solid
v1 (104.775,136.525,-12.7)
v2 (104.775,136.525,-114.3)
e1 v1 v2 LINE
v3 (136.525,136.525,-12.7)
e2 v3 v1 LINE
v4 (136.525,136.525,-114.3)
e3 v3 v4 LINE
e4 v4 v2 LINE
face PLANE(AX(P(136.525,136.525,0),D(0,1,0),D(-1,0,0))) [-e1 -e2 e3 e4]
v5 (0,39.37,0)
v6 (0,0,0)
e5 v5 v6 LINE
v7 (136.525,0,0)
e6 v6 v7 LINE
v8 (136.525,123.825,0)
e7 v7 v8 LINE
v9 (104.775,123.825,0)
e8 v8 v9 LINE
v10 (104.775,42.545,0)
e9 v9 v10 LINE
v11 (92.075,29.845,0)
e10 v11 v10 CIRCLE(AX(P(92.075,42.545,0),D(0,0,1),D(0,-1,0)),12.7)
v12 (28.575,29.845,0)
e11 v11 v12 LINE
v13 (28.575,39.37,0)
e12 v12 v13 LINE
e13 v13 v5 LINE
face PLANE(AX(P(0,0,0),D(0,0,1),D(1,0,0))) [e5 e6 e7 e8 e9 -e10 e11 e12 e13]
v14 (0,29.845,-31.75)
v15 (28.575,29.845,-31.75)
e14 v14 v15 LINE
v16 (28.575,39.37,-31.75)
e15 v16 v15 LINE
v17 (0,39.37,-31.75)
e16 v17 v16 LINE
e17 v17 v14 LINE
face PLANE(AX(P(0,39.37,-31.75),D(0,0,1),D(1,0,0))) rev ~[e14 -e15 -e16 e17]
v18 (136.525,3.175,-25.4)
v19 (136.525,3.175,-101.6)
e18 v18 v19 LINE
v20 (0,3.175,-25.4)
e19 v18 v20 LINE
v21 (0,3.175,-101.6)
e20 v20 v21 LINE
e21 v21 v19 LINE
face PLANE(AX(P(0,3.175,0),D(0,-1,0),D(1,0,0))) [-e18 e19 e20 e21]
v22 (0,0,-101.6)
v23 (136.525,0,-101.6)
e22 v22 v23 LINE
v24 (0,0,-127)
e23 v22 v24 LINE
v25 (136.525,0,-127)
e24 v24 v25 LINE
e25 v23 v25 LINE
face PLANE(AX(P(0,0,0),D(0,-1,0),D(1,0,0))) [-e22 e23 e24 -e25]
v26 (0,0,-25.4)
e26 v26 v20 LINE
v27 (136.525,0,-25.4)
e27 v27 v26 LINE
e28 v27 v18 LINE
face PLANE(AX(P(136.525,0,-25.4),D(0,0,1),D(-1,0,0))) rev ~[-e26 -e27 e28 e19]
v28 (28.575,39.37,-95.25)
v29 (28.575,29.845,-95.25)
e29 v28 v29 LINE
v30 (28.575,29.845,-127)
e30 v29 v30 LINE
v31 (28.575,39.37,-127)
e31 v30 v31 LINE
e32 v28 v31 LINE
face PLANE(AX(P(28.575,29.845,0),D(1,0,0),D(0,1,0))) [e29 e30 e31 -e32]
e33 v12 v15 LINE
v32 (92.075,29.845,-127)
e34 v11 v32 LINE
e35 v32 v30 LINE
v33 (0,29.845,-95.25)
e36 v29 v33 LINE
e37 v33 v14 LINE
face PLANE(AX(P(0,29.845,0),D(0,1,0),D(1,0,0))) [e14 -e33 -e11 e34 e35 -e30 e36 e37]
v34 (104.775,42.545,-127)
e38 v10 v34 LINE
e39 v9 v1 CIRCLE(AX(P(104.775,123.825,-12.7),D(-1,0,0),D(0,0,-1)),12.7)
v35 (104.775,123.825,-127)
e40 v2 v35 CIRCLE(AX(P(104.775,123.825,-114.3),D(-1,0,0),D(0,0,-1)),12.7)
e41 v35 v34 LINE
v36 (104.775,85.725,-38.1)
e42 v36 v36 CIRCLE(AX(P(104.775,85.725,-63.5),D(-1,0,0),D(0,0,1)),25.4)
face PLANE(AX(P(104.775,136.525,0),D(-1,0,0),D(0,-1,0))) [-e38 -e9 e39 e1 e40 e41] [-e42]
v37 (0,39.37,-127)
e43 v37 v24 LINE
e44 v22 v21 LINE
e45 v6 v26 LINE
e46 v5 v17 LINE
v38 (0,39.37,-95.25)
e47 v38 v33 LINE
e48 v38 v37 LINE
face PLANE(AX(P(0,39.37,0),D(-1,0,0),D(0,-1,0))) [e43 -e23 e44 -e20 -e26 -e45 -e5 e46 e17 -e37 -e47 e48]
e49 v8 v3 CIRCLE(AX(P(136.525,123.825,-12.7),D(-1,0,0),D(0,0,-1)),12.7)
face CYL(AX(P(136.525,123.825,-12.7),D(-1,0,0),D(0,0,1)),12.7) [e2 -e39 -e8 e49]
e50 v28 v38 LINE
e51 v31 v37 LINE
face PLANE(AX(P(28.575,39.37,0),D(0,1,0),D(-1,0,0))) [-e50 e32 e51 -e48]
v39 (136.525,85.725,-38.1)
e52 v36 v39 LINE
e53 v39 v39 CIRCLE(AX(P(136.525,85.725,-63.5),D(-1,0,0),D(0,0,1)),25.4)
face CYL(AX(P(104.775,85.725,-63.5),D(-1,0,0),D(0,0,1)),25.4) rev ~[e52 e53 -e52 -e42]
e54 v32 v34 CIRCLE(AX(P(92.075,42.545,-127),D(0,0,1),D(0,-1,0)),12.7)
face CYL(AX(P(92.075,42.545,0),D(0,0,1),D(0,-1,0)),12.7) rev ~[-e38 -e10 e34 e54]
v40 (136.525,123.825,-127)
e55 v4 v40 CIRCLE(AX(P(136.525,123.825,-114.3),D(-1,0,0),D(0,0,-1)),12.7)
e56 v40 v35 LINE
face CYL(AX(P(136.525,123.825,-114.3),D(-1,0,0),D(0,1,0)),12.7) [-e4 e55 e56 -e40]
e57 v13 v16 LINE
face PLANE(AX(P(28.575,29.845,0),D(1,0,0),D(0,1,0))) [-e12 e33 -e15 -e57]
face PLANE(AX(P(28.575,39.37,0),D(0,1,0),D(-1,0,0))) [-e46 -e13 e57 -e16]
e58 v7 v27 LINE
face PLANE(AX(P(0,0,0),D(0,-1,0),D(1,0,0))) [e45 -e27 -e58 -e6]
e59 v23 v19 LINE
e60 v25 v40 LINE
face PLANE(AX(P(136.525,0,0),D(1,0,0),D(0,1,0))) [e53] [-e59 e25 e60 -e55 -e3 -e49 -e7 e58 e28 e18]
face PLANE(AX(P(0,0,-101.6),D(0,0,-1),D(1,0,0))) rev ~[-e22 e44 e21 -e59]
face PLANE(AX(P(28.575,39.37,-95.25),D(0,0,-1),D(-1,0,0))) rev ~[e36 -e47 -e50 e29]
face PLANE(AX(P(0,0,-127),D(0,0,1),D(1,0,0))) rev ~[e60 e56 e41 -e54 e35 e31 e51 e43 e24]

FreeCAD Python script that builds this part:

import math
import FreeCAD as App
import Part
import Sketcher
Q = App.Units.Quantity


def edges_at(feature, points):
    """Names of the edges that pass closest to the given points."""
    edges = feature.Shape.Edges
    near = lambda p: min(range(len(edges)), key=lambda i: edges[i].distToShape(Part.Vertex(*p))[0])
    return sorted({f"Edge{near(p) + 1}" for p in points})


def add_polygon(sketch, points):
    """Adds a closed chain of lines whose ends are joined by coincident constraints."""
    first, n = sketch.GeometryCount, len(points)
    for a, b in zip(points, points[1:] + points[:1]):
        sketch.addGeometry(Part.LineSegment(App.Vector(*a, 0), App.Vector(*b, 0)), False)
    for i in range(n):
        sketch.addConstraint(Sketcher.Constraint("Coincident", first + i, 2, first + (i + 1) % n, 1))

doc = App.newDocument("Part")
body = doc.addObject("PartDesign::Body", "Body")

# Sketch on XY plane
sketch1 = doc.addObject("Sketcher::SketchObject", "Sketch")
body.addObject(sketch1)
sketch1.AttachmentSupport = (doc.XY_Plane, [""])
sketch1.MapMode = "FlatFace"
sketch1.addGeometry([
    Part.LineSegment(App.Vector(0, 39, 0), App.Vector(0, 0, 0)),  # 0
    Part.LineSegment(App.Vector(0, 0, 0), App.Vector(137, 0, 0)),  # 1
    Part.LineSegment(App.Vector(137, 0, 0), App.Vector(137, 137, 0)),  # 2
    Part.LineSegment(App.Vector(137, 137, 0), App.Vector(105, 137, 0)),  # 3
    Part.LineSegment(App.Vector(105, 137, 0), App.Vector(105, 43, 0)),  # 4
    Part.ArcOfCircle(Part.Circle(App.Vector(92, 43, 0), App.Vector(0, 0, 1), 13), math.radians(-90), math.radians(0)),  # 5
    Part.LineSegment(App.Vector(92, 30, 0), App.Vector(29, 30, 0)),  # 6
    Part.LineSegment(App.Vector(29, 30, 0), App.Vector(29, 39, 0)),  # 7
    Part.LineSegment(App.Vector(29, 39, 0), App.Vector(0, 39, 0)),  # 8
], False)
sketch1.addConstraint([
    Sketcher.Constraint("Coincident", 0, 2, 1, 1),
    Sketcher.Constraint("Coincident", 1, 2, 2, 1),
    Sketcher.Constraint("Coincident", 2, 2, 3, 1),
    Sketcher.Constraint("Coincident", 3, 2, 4, 1),
    Sketcher.Constraint("Tangent", 4, 2, 5, 2),
    Sketcher.Constraint("Tangent", 5, 1, 6, 1),
    Sketcher.Constraint("Coincident", 6, 2, 7, 1),
    Sketcher.Constraint("Coincident", 7, 2, 8, 1),
    Sketcher.Constraint("Coincident", 8, 2, 0, 1),
    Sketcher.Constraint("Vertical", 0),
    Sketcher.Constraint("Horizontal", 1),
    Sketcher.Constraint("Vertical", 2),
    Sketcher.Constraint("Horizontal", 3),
    Sketcher.Constraint("Vertical", 4),
    Sketcher.Constraint("Horizontal", 6),
    Sketcher.Constraint("Vertical", 7),
    Sketcher.Constraint("Horizontal", 8),
    Sketcher.Constraint("Coincident", 0, 2, -1, 1),
    Sketcher.Constraint("Equal", 1, 2),
    Sketcher.Constraint("Radius", 5, Q("0.5 in")),
    Sketcher.Constraint("DistanceX", 6, 2, 4, 2, Q("3 in")),
    Sketcher.Constraint("DistanceX", 3, 2, 3, 1, Q("1.25 in")),
    Sketcher.Constraint("DistanceY", 0, 2, 0, 1, Q("1.55 in")),
    Sketcher.Constraint("DistanceX", 1, 1, 1, 2, Q("5.375 in")),
    Sketcher.Constraint("DistanceY", 7, 1, 7, 2, Q("0.375 in")),
])
pad1 = doc.addObject("PartDesign::Pad", "Pad")
body.addObject(pad1)
pad1.Profile = sketch1
pad1.Length = Q("5 in")
pad1.Reversed = True

# Sketch on XZ plane
sketch2 = doc.addObject("Sketcher::SketchObject", "Sketch001")
body.addObject(sketch2)
sketch2.AttachmentSupport = (doc.XZ_Plane, [""])
sketch2.MapMode = "FlatFace"
sketch2.AttachmentOffset = App.Placement(App.Vector(0, 0, -1.55 * 25.4), App.Rotation())
add_polygon(sketch2, [(0, -32), (29, -32), (29, -95), (0, -95)])  # lines 0-3
sketch2.addConstraint([
    Sketcher.Constraint("Horizontal", 0),
    Sketcher.Constraint("Vertical", 1),
    Sketcher.Constraint("Horizontal", 2),
    Sketcher.Constraint("Vertical", 3),
    Sketcher.Constraint("PointOnObject", 2, 2, -2),
    Sketcher.Constraint("DistanceY", 1, 2, 1, 1, Q("2.5 in")),
    Sketcher.Constraint("DistanceY", 0, 2, -1, 1, Q("1.25 in")),
    Sketcher.Constraint("DistanceX", 0, 1, 0, 2, Q("1.125 in")),
])
pocket1 = doc.addObject("PartDesign::Pocket", "Pocket")
body.addObject(pocket1)
pocket1.Profile = sketch2
pocket1.Length = Q("0.375 in")
pocket1.Reversed = True

# Sketch on XZ plane
sketch3 = doc.addObject("Sketcher::SketchObject", "Sketch002")
body.addObject(sketch3)
sketch3.AttachmentSupport = (doc.XZ_Plane, [""])
sketch3.MapMode = "FlatFace"
add_polygon(sketch3, [(137, -25), (0, -25), (0, -102), (137, -102)])  # lines 0-3
sketch3.addConstraint([
    Sketcher.Constraint("Horizontal", 0),
    Sketcher.Constraint("Vertical", 1),
    Sketcher.Constraint("Horizontal", 2),
    Sketcher.Constraint("Vertical", 3),
    Sketcher.Constraint("PointOnObject", 0, 2, -2),
    Sketcher.Constraint("DistanceY", 1, 2, 1, 1, Q("3 in")),
    Sketcher.Constraint("DistanceY", 0, 2, -1, 1, Q("1 in")),
    Sketcher.Constraint("DistanceX", 0, 2, 0, 1, Q("5.375 in")),
])
pocket2 = doc.addObject("PartDesign::Pocket", "Pocket001")
body.addObject(pocket2)
pocket2.Profile = sketch3
pocket2.Length = Q("0.125 in")

# Sketch on YZ plane
sketch4 = doc.addObject("Sketcher::SketchObject", "Sketch003")
body.addObject(sketch4)
sketch4.AttachmentSupport = (doc.YZ_Plane, [""])
sketch4.MapMode = "FlatFace"
sketch4.AttachmentOffset = App.Placement(App.Vector(0, 0, 4.125 * 25.4), App.Rotation())
sketch4.addGeometry(Part.Circle(App.Vector(86, -64, 0), App.Vector(0, 0, 1), 25), False)
sketch4.addConstraint([
    Sketcher.Constraint("Diameter", 0, Q("2 in")),
    Sketcher.Constraint("DistanceY", 0, 3, -1, 1, Q("2.5 in")),
    Sketcher.Constraint("DistanceX", -1, 1, 0, 3, Q("3.375 in")),
])
pocket3 = doc.addObject("PartDesign::Pocket", "Pocket002")
body.addObject(pocket3)
pocket3.Profile = sketch4
pocket3.Type = "ThroughAll"
pocket3.Reversed = True
doc.recompute()

fillet = doc.addObject("PartDesign::Fillet", "Fillet")
body.addObject(fillet)
fillet.Base = (pocket3, edges_at(pocket3, [(120.65, 136.525, 0)]))
fillet.Radius = Q("0.5 in")
doc.recompute()

fillet2 = doc.addObject("PartDesign::Fillet", "Fillet001")
body.addObject(fillet2)
fillet2.Base = (fillet, edges_at(fillet, [(120.65, 136.525, -127)]))
fillet2.Radius = Q("0.5 in")

doc.recompute()
